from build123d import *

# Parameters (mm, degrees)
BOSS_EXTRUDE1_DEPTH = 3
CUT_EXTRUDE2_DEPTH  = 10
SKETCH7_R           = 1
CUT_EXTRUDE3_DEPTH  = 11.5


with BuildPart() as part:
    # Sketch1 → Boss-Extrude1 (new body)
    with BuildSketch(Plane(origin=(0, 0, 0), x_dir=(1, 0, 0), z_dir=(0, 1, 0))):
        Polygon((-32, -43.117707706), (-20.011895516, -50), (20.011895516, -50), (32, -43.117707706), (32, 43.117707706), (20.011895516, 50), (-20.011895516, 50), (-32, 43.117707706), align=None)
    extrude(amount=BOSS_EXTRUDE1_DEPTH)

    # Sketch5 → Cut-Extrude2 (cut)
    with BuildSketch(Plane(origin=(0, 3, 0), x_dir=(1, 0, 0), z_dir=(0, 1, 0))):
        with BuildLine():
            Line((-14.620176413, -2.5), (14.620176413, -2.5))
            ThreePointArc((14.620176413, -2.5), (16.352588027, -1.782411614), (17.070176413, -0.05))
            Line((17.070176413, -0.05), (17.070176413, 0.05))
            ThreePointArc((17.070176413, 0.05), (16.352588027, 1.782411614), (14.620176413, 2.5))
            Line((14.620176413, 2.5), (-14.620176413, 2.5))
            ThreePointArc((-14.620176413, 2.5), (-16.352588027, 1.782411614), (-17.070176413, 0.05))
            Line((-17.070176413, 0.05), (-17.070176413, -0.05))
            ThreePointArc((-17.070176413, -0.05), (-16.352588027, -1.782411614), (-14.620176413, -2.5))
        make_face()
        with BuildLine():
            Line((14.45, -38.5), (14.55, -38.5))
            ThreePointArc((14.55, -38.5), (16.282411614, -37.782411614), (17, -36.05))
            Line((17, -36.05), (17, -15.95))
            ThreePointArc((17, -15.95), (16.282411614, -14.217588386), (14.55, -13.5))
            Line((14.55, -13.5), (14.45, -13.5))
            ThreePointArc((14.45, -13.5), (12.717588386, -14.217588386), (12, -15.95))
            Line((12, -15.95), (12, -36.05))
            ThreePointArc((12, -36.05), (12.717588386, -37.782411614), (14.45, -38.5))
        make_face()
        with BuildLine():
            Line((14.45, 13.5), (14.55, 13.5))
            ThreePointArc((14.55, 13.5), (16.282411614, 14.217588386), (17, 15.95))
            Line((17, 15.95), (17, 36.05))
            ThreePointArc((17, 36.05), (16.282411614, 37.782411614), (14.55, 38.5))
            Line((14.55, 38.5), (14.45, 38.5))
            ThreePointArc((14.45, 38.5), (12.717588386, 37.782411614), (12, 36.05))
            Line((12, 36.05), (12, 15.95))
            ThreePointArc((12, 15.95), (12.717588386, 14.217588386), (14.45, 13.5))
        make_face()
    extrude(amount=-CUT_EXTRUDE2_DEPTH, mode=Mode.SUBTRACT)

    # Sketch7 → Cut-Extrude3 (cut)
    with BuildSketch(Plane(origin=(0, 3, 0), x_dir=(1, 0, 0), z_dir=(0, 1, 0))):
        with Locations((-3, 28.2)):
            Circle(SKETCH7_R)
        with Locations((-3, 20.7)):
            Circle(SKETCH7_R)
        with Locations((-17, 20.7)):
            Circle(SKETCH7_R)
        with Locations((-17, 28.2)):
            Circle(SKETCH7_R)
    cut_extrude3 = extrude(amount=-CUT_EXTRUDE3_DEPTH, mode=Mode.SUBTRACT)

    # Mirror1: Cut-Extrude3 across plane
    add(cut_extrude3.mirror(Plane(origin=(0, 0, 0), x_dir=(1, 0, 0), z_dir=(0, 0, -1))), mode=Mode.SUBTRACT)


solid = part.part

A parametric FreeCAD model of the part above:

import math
import FreeCAD as App
import Part
import Sketcher
from FreeCAD import Vector
Q = App.Units.Quantity


def add_polygon(sketch, points):
    """Adds a closed chain of lines whose ends are joined by coincident constraints."""
    first, n = sketch.GeometryCount, len(points)
    for a, b in zip(points, points[1:] + points[:1]):
        sketch.addGeometry(Part.LineSegment(App.Vector(*a, 0), App.Vector(*b, 0)), False)
    for i in range(n):
        sketch.addConstraint(Sketcher.Constraint("Coincident", first + i, 2, first + (i + 1) % n, 1))

doc = App.newDocument("Part")
params = doc.addObject("Spreadsheet::Sheet", "Params")
for row, (alias, value) in enumerate([
    ("pad1_length", "3 mm"),
    ("sketch2_radius", "2.45 mm"),
    ("sketch2_width", "0.1 mm"),
    ("sketch2_height", "20.1 mm"),
    ("pocket1_length", "10 mm"),
    ("sketch3_diameter", "2 mm"),
    ("pocket2_length", "11.5 mm"),
], start=1):
    params.set(f"A{row}", alias)
    params.set(f"B{row}", "=" + value)
    params.setAlias(f"B{row}", alias)

body = doc.addObject("PartDesign::Body", "Body")

sketch1 = body.newObject("Sketcher::SketchObject", "Sketch")
sketch1.AttachmentSupport = (doc.getObject("XZ_Plane"), [""])
sketch1.MapMode = "FlatFace"
add_polygon(sketch1, [(-32, 43), (-20, 50), (20, 50), (32, 43), (32, -43), (20, -50), (-20, -50), (-32, -43)])
sketch1.addConstraint(Sketcher.Constraint("Horizontal", 1))
sketch1.addConstraint(Sketcher.Constraint("Vertical", 3))
sketch1.addConstraint(Sketcher.Constraint("Horizontal", 5))
sketch1.addConstraint(Sketcher.Constraint("Vertical", 7))
sketch1.addConstraint(Sketcher.Constraint("Symmetric", 0, 2, 4, 2, -1, 1))
sketch1.addConstraint(Sketcher.Constraint("Symmetric", 2, 2, 6, 2, -1, 1))
sketch1.addConstraint(Sketcher.Constraint("Parallel", 0, 4))
sketch1.addConstraint(Sketcher.Constraint("Parallel", 2, 6))
sketch1.addConstraint(Sketcher.Constraint("Horizontal", 3, 2, 6, 2))
sketch1.addConstraint(Sketcher.Constraint("Vertical", 1, 2, 4, 2))
sketch1.addConstraint(Sketcher.Constraint("DistanceY", -1, 1, 0, 2, Q("50 mm")))
sketch1.addConstraint(Sketcher.Constraint("DistanceX", -1, 1, 2, 2, Q("32 mm")))
sketch1.addConstraint(Sketcher.Constraint("DistanceX", 1, 1, 1, 2, Q("40.023791 mm")))
sketch1.addConstraint(Sketcher.Constraint("Distance", 0, Q("13.823191 mm")))
pad1 = body.newObject("PartDesign::Pad", "Pad")
pad1.Profile = sketch1
pad1.setExpression("Length", "Params.pad1_length")
pad1.Reversed = True

sketch2 = body.newObject("Sketcher::SketchObject", "Sketch001")
sketch2.AttachmentSupport = (doc.getObject("XZ_Plane"), [""])
sketch2.MapMode = "FlatFace"
sketch2.AttachmentOffset = App.Placement(Vector(0, 0, -3), App.Rotation())
sketch2.addGeometry(Part.LineSegment(Vector(-14.62, 2.5, 0), Vector(14.62, 2.5, 0)), False)
sketch2.addGeometry(Part.ArcOfCircle(Part.Circle(Vector(14.62, 0.05, 0), Vector(0, 0, 1), 2.45), math.radians(0), math.radians(90)), False)
sketch2.addGeometry(Part.LineSegment(Vector(17.07, 0.05, 0), Vector(17.07, -0.05, 0)), False)
sketch2.addGeometry(Part.ArcOfCircle(Part.Circle(Vector(14.62, -0.05, 0), Vector(0, 0, 1), 2.45), math.radians(-90), math.radians(0)), False)
sketch2.addGeometry(Part.LineSegment(Vector(14.62, -2.5, 0), Vector(-14.62, -2.5, 0)), False)
sketch2.addGeometry(Part.ArcOfCircle(Part.Circle(Vector(-14.62, -0.05, 0), Vector(0, 0, 1), 2.45), math.radians(180), math.radians(270)), False)
sketch2.addGeometry(Part.LineSegment(Vector(-17.07, -0.05, 0), Vector(-17.07, 0.05, 0)), False)
sketch2.addGeometry(Part.ArcOfCircle(Part.Circle(Vector(-14.62, 0.05, 0), Vector(0, 0, 1), 2.45), math.radians(90), math.radians(180)), False)
sketch2.addGeometry(Part.LineSegment(Vector(14.45, 38.5, 0), Vector(14.55, 38.5, 0)), False)
sketch2.addGeometry(Part.ArcOfCircle(Part.Circle(Vector(14.55, 36.05, 0), Vector(0, 0, 1), 2.45), math.radians(0), math.radians(90)), False)
sketch2.addGeometry(Part.LineSegment(Vector(17, 36.05, 0), Vector(17, 15.95, 0)), False)
sketch2.addGeometry(Part.ArcOfCircle(Part.Circle(Vector(14.55, 15.95, 0), Vector(0, 0, 1), 2.45), math.radians(-90), math.radians(0)), False)
sketch2.addGeometry(Part.LineSegment(Vector(14.55, 13.5, 0), Vector(14.45, 13.5, 0)), False)
sketch2.addGeometry(Part.ArcOfCircle(Part.Circle(Vector(14.45, 15.95, 0), Vector(0, 0, 1), 2.45), math.radians(180), math.radians(270)), False)
sketch2.addGeometry(Part.LineSegment(Vector(12, 15.95, 0), Vector(12, 36.05, 0)), False)
sketch2.addGeometry(Part.ArcOfCircle(Part.Circle(Vector(14.45, 36.05, 0), Vector(0, 0, 1), 2.45), math.radians(90), math.radians(180)), False)
sketch2.addGeometry(Part.LineSegment(Vector(14.45, -13.5, 0), Vector(14.55, -13.5, 0)), False)
sketch2.addGeometry(Part.ArcOfCircle(Part.Circle(Vector(14.55, -15.95, 0), Vector(0, 0, 1), 2.45), math.radians(0), math.radians(90)), False)
sketch2.addGeometry(Part.LineSegment(Vector(17, -15.95, 0), Vector(17, -36.05, 0)), False)
sketch2.addGeometry(Part.ArcOfCircle(Part.Circle(Vector(14.55, -36.05, 0), Vector(0, 0, 1), 2.45), math.radians(-90), math.radians(0)), False)
sketch2.addGeometry(Part.LineSegment(Vector(14.55, -38.5, 0), Vector(14.45, -38.5, 0)), False)
sketch2.addGeometry(Part.ArcOfCircle(Part.Circle(Vector(14.45, -36.05, 0), Vector(0, 0, 1), 2.45), math.radians(180), math.radians(270)), False)
sketch2.addGeometry(Part.LineSegment(Vector(12, -36.05, 0), Vector(12, -15.95, 0)), False)
sketch2.addGeometry(Part.ArcOfCircle(Part.Circle(Vector(14.45, -15.95, 0), Vector(0, 0, 1), 2.45), math.radians(90), math.radians(180)), False)
sketch2.addConstraint(Sketcher.Constraint("Tangent", 0, 2, 1, 2))
sketch2.addConstraint(Sketcher.Constraint("Tangent", 1, 1, 2, 1))
sketch2.addConstraint(Sketcher.Constraint("Tangent", 2, 2, 3, 2))
sketch2.addConstraint(Sketcher.Constraint("Tangent", 3, 1, 4, 1))
sketch2.addConstraint(Sketcher.Constraint("Tangent", 4, 2, 5, 2))
sketch2.addConstraint(Sketcher.Constraint("Tangent", 5, 1, 6, 1))
sketch2.addConstraint(Sketcher.Constraint("Tangent", 6, 2, 7, 2))
sketch2.addConstraint(Sketcher.Constraint("Tangent", 7, 1, 0, 1))
sketch2.addConstraint(Sketcher.Constraint("Tangent", 8, 2, 9, 2))
sketch2.addConstraint(Sketcher.Constraint("Tangent", 9, 1, 10, 1))
sketch2.addConstraint(Sketcher.Constraint("Tangent", 10, 2, 11, 2))
sketch2.addConstraint(Sketcher.Constraint("Tangent", 11, 1, 12, 1))
sketch2.addConstraint(Sketcher.Constraint("Tangent", 12, 2, 13, 2))
sketch2.addConstraint(Sketcher.Constraint("Tangent", 13, 1, 14, 1))
sketch2.addConstraint(Sketcher.Constraint("Tangent", 14, 2, 15, 2))
sketch2.addConstraint(Sketcher.Constraint("Tangent", 15, 1, 8, 1))
sketch2.addConstraint(Sketcher.Constraint("Tangent", 16, 2, 17, 2))
sketch2.addConstraint(Sketcher.Constraint("Tangent", 17, 1, 18, 1))
sketch2.addConstraint(Sketcher.Constraint("Tangent", 18, 2, 19, 2))
sketch2.addConstraint(Sketcher.Constraint("Tangent", 19, 1, 20, 1))
sketch2.addConstraint(Sketcher.Constraint("Tangent", 20, 2, 21, 2))
sketch2.addConstraint(Sketcher.Constraint("Tangent", 21, 1, 22, 1))
sketch2.addConstraint(Sketcher.Constraint("Tangent", 22, 2, 23, 2))
sketch2.addConstraint(Sketcher.Constraint("Tangent", 23, 1, 16, 1))
sketch2.addConstraint(Sketcher.Constraint("Horizontal", 0))
sketch2.addConstraint(Sketcher.Constraint("Vertical", 2))
sketch2.addConstraint(Sketcher.Constraint("Horizontal", 4))
sketch2.addConstraint(Sketcher.Constraint("Vertical", 6))
sketch2.addConstraint(Sketcher.Constraint("Horizontal", 8))
sketch2.addConstraint(Sketcher.Constraint("Vertical", 10))
sketch2.addConstraint(Sketcher.Constraint("Horizontal", 12))
sketch2.addConstraint(Sketcher.Constraint("Vertical", 14))
sketch2.addConstraint(Sketcher.Constraint("Horizontal", 16))
sketch2.addConstraint(Sketcher.Constraint("Vertical", 18))
sketch2.addConstraint(Sketcher.Constraint("Horizontal", 20))
sketch2.addConstraint(Sketcher.Constraint("Vertical", 22))
sketch2.addConstraint(Sketcher.Constraint("Equal", 1, 3))
sketch2.addConstraint(Sketcher.Constraint("Equal", 3, 5))
sketch2.addConstraint(Sketcher.Constraint("Equal", 5, 7))
sketch2.addConstraint(Sketcher.Constraint("Equal", 7, 9))
sketch2.addConstraint(Sketcher.Constraint("Equal", 9, 11))
sketch2.addConstraint(Sketcher.Constraint("Equal", 11, 13))
sketch2.addConstraint(Sketcher.Constraint("Equal", 13, 15))
sketch2.addConstraint(Sketcher.Constraint("Equal", 15, 17))
sketch2.addConstraint(Sketcher.Constraint("Equal", 17, 19))
sketch2.addConstraint(Sketcher.Constraint("Equal", 19, 21))
sketch2.addConstraint(Sketcher.Constraint("Equal", 21, 23))
sketch2.addConstraint(Sketcher.Constraint("Symmetric", 1, 3, 5, 3, -1, 1))
sketch2.addConstraint(Sketcher.Constraint("Symmetric", 11, 3, 17, 3, -1))
sketch2.addConstraint(Sketcher.Constraint("Symmetric", 15, 3, 21, 3, -1))
sketch2.addConstraint(Sketcher.Constraint("Equal", 20, 2))
sketch2.addConstraint(Sketcher.Constraint("Radius", 1, Q("2.45 mm")))
sketch2.addConstraint(Sketcher.Constraint("DistanceX", 8, 1, 8, 2, Q("0.1 mm")))
sketch2.addConstraint(Sketcher.Constraint("DistanceY", 10, 2, 10, 1, Q("20.1 mm")))
sketch2.addConstraint(Sketcher.Constraint("DistanceX", -1, 1, 9, 1, Q("17 mm")))
sketch2.addConstraint(Sketcher.Constraint("DistanceY", 1, 3, 9, 3, Q("36 mm")))
sketch2.addConstraint(Sketcher.Constraint("DistanceX", 0, 1, 0, 2, Q("29.240353 mm")))
sketch2.setExpression("Constraints[51]", "Params.sketch2_radius")
sketch2.setExpression("Constraints[52]", "Params.sketch2_width")
sketch2.setExpression("Constraints[53]", "Params.sketch2_height")
pocket1 = body.newObject("PartDesign::Pocket", "Pocket")
pocket1.Profile = sketch2
pocket1.setExpression("Length", "Params.pocket1_length")
pocket1.Reversed = True

sketch3 = body.newObject("Sketcher::SketchObject", "Sketch002")
sketch3.AttachmentSupport = (doc.getObject("XZ_Plane"), [""])
sketch3.MapMode = "FlatFace"
sketch3.AttachmentOffset = App.Placement(Vector(0, 0, -3), App.Rotation())
sketch3.addGeometry(Part.Circle(Vector(-3, -28.2, 0), Vector(0, 0, 1), 1), False)
sketch3.addGeometry(Part.Circle(Vector(-3, -20.7, 0), Vector(0, 0, 1), 1), False)
sketch3.addGeometry(Part.Circle(Vector(-17, -20.7, 0), Vector(0, 0, 1), 1), False)
sketch3.addGeometry(Part.Circle(Vector(-17, -28.2, 0), Vector(0, 0, 1), 1), False)
sketch3.addConstraint(Sketcher.Constraint("Equal", 0, 1))
sketch3.addConstraint(Sketcher.Constraint("Equal", 1, 2))
sketch3.addConstraint(Sketcher.Constraint("Equal", 2, 3))
sketch3.addConstraint(Sketcher.Constraint("Horizontal", 1, 3, 2, 3))
sketch3.addConstraint(Sketcher.Constraint("Horizontal", 0, 3, 3, 3))
sketch3.addConstraint(Sketcher.Constraint("Vertical", 0, 3, 1, 3))
sketch3.addConstraint(Sketcher.Constraint("Vertical", 2, 3, 3, 3))
sketch3.addConstraint(Sketcher.Constraint("Diameter", 0, Q("2 mm")))
sketch3.addConstraint(Sketcher.Constraint("DistanceX", 0, 3, -1, 1, Q("3 mm")))
sketch3.addConstraint(Sketcher.Constraint("DistanceX", 2, 3, -1, 1, Q("17 mm")))
sketch3.addConstraint(Sketcher.Constraint("DistanceY", 0, 3, -1, 1, Q("28.2 mm")))
sketch3.addConstraint(Sketcher.Constraint("DistanceY", 1, 3, -1, 1, Q("20.7 mm")))
sketch3.setExpression("Constraints[7]", "Params.sketch3_diameter")
pocket2 = body.newObject("PartDesign::Pocket", "Pocket001")
pocket2.Profile = sketch3
pocket2.setExpression("Length", "Params.pocket2_length")
pocket2.Reversed = True
doc.recompute()

mirrored = body.newObject("PartDesign::Mirrored", "Mirrored")
mirrored.Originals = [pocket2]
mirrored.MirrorPlane = (doc.getObject("XY_Plane"), [""])
body.Tip = mirrored

doc.recompute()
